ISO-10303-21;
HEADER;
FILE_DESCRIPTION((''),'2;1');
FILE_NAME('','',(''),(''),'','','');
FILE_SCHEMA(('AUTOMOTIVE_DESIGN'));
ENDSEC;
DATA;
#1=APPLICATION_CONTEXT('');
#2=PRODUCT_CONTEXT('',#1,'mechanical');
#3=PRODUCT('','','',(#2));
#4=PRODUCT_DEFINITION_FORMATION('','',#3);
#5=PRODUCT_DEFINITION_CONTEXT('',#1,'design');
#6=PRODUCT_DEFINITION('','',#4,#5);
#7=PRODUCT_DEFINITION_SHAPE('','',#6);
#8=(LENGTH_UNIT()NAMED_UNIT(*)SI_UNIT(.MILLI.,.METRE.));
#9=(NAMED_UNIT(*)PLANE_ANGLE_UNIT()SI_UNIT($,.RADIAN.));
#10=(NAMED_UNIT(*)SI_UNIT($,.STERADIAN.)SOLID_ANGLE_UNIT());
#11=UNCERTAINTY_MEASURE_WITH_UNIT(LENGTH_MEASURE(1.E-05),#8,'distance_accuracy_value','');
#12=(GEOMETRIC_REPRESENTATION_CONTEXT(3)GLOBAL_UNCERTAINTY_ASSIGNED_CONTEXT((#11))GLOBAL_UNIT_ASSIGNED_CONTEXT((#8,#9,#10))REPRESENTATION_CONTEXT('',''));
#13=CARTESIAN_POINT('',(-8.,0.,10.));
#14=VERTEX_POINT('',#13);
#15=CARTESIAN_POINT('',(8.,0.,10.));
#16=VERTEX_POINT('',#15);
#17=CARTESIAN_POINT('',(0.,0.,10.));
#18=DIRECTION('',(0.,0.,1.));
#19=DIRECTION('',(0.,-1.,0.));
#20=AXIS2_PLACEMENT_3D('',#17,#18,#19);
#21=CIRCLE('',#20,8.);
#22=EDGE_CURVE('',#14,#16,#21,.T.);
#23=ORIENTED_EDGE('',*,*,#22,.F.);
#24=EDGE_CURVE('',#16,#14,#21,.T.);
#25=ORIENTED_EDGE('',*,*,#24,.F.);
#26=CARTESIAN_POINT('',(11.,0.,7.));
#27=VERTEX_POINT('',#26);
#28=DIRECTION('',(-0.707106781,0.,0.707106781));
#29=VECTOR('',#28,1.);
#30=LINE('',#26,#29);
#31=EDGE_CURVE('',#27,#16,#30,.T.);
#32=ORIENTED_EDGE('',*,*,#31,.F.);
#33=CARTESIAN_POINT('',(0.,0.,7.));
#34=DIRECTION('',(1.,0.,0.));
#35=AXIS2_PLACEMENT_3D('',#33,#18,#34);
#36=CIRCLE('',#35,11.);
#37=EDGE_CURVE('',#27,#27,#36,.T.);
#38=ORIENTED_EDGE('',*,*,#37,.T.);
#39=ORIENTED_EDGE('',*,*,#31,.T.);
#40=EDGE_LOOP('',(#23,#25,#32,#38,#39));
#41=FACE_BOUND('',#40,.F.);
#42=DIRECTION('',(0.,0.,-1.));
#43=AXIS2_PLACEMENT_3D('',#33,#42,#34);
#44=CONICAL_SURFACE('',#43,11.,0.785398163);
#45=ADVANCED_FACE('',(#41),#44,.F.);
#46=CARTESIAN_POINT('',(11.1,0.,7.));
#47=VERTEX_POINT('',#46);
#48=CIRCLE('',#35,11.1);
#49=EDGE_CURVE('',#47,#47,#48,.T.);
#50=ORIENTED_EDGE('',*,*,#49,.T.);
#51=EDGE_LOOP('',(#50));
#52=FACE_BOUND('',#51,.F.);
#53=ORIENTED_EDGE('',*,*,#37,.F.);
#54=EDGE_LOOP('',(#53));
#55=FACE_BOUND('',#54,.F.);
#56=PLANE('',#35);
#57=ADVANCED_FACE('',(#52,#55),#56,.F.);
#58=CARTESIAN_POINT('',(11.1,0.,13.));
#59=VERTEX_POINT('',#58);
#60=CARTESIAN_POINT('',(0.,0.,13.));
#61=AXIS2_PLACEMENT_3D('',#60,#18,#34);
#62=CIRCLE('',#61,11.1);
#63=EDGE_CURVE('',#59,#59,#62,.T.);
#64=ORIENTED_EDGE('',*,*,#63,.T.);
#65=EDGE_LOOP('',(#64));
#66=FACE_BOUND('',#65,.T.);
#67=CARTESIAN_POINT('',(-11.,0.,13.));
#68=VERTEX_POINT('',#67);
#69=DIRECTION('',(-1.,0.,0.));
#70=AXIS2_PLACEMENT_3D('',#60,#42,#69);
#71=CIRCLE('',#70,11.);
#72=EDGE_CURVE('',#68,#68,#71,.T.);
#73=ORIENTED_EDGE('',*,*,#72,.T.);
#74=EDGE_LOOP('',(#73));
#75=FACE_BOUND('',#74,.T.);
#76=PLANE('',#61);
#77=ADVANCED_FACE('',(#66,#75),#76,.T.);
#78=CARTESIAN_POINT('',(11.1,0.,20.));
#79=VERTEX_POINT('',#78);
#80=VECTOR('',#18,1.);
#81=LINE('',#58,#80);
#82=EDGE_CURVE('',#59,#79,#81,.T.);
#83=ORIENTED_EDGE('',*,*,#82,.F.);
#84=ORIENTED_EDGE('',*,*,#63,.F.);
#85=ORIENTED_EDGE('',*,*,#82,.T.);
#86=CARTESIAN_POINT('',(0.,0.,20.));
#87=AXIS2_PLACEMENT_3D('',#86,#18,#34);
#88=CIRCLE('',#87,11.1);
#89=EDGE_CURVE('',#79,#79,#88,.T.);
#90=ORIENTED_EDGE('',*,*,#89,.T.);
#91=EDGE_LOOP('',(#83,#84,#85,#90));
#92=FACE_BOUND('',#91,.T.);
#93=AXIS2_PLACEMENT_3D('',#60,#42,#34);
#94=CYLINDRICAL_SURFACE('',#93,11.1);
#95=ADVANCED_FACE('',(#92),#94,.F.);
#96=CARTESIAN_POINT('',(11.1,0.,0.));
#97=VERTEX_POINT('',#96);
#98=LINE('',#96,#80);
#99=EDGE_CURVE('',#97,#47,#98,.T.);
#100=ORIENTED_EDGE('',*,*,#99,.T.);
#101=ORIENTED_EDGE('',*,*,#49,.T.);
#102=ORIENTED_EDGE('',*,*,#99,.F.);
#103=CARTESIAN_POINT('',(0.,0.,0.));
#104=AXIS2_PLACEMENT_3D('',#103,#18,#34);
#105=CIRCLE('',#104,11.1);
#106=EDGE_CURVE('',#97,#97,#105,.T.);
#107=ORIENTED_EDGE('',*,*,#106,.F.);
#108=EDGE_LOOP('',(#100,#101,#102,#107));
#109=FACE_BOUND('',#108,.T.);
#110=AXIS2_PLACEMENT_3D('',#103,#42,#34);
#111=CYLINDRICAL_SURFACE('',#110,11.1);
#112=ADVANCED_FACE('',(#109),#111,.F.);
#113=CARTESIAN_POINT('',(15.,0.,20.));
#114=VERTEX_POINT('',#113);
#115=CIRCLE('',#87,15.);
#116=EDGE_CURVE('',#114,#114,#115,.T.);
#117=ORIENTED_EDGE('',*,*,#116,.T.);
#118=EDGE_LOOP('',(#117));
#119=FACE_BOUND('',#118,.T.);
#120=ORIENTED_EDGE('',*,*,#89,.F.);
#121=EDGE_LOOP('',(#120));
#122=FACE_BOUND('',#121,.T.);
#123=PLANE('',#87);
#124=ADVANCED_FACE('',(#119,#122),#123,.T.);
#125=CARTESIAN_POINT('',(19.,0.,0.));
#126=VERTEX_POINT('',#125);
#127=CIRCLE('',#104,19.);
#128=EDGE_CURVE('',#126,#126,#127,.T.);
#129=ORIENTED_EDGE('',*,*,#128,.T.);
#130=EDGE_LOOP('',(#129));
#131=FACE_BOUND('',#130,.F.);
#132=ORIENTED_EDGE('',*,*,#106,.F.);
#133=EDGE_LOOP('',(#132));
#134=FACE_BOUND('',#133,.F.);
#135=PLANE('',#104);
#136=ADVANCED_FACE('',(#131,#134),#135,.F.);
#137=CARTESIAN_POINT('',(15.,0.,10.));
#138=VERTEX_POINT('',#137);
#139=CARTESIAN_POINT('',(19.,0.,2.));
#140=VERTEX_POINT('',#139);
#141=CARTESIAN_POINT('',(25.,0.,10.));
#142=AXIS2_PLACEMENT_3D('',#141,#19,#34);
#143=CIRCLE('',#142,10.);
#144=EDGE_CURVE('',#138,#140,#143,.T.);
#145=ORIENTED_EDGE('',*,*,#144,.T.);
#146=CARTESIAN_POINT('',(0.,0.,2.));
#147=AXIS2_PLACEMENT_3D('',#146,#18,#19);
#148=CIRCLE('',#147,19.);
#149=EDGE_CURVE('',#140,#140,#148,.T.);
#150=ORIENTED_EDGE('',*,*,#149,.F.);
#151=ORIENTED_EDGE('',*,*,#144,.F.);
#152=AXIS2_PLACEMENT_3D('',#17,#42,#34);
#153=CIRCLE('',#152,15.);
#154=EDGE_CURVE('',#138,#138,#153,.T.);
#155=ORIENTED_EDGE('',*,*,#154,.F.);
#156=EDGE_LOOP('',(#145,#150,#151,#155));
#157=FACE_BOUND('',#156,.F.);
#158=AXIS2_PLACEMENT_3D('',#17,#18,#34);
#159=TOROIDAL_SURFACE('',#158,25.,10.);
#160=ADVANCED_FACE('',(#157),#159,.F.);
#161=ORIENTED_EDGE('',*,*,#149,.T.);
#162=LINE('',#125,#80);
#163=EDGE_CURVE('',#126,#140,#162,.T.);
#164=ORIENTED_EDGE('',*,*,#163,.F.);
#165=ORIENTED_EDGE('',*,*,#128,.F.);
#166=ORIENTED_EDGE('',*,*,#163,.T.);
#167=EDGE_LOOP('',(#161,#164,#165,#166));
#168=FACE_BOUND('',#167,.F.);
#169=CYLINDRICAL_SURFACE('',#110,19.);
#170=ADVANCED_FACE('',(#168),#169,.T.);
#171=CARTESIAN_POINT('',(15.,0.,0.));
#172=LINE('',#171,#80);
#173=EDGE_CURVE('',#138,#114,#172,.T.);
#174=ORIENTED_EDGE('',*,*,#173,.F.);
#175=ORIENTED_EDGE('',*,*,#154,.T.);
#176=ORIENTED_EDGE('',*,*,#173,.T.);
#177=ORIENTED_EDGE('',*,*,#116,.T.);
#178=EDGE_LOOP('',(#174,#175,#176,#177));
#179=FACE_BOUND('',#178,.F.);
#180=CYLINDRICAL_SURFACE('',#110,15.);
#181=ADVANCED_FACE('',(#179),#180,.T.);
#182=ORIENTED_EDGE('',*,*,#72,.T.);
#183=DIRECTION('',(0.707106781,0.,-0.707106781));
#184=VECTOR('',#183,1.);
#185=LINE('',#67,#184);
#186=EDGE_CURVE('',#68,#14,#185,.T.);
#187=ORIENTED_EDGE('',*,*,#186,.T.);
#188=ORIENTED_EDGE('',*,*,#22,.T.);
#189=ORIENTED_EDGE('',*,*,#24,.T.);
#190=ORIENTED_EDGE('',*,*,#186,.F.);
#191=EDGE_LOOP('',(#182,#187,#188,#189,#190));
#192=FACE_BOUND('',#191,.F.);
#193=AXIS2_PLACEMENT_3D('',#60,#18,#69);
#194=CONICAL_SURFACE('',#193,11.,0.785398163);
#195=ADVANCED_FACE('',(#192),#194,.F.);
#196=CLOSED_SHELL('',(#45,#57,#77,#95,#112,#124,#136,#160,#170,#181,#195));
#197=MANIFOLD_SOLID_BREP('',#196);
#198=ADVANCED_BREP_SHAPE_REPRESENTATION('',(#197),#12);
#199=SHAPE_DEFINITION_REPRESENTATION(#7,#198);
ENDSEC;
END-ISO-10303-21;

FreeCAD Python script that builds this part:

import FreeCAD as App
import Part
import Sketcher

V = App.Vector


def add_polygon(sketch, points):
    """Adds a closed chain of lines whose ends are joined by coincident constraints."""
    first, n = sketch.GeometryCount, len(points)
    for a, b in zip(points, points[1:] + points[:1]):
        sketch.addGeometry(Part.LineSegment(App.Vector(*a, 0), App.Vector(*b, 0)), False)
    for i in range(n):
        sketch.addConstraint(Sketcher.Constraint("Coincident", first + i, 2, first + (i + 1) % n, 1))

doc = App.newDocument("Part")
body = doc.addObject("PartDesign::Body", "Body")

# Sketch on XY plane
sketch1 = body.newObject("Sketcher::SketchObject", "Sketch")
sketch1.AttachmentSupport = (doc.getObject("XY_Plane"), [""])
sketch1.MapMode = "FlatFace"
sketch1.AttachmentOffset = App.Placement(V(0, 0, 13), App.Rotation())
sketch1.addGeometry(Part.Circle(V(0, 0, 0), V(0, 0, 1), 11.1), False)
sketch1.addConstraint(Sketcher.Constraint("Coincident", 0, 3, -1, 1))
sketch1.addConstraint(Sketcher.Constraint("Diameter", 0, 22.2))
pad1 = body.newObject("PartDesign::Pad", "Pad")
pad1.Profile = sketch1
pad1.Length = 7
body2 = doc.addObject("PartDesign::Body", "Body001")

# Sketch on XZ plane
sketch2 = body2.newObject("Sketcher::SketchObject", "Sketch001")
sketch2.AttachmentSupport = (doc.getObject("XZ_Plane001"), [""])
sketch2.MapMode = "FlatFace"
add_polygon(sketch2, [(0, 7), (11, 7), (0, 18)])  # lines 0-2
sketch2.addConstraint(Sketcher.Constraint("Horizontal", 0))
sketch2.addConstraint(Sketcher.Constraint("Vertical", 2))
sketch2.addConstraint(Sketcher.Constraint("PointOnObject", 1, 2, -2))
sketch2.addConstraint(Sketcher.Constraint("Equal", 0, 2))
sketch2.addConstraint(Sketcher.Constraint("DistanceX", 0, 1, 0, 2, 11.0))
sketch2.addConstraint(Sketcher.Constraint("DistanceY", -1, 1, 0, 2, 7.0))
revolution = body2.newObject("PartDesign::Revolution", "Revolution")
revolution.Profile = sketch2
revolution.ReferenceAxis = (sketch2, ["V_Axis"])
revolution.Angle = 360
body3 = doc.addObject("PartDesign::Body", "Body002")

# Sketch on XZ plane
sketch3 = body3.newObject("Sketcher::SketchObject", "Sketch002")
sketch3.AttachmentSupport = (doc.getObject("XZ_Plane002"), [""])
sketch3.MapMode = "FlatFace"
add_polygon(sketch3, [(0, 13), (-11, 13), (0, 2)])  # lines 0-2
sketch3.addConstraint(Sketcher.Constraint("Horizontal", 0))
sketch3.addConstraint(Sketcher.Constraint("Vertical", 2))
sketch3.addConstraint(Sketcher.Constraint("PointOnObject", 1, 2, -2))
sketch3.addConstraint(Sketcher.Constraint("Equal", 0, 2))
sketch3.addConstraint(Sketcher.Constraint("DistanceX", 0, 2, 0, 1, 11.0))
sketch3.addConstraint(Sketcher.Constraint("DistanceY", -1, 1, 0, 2, 13.0))
revolution2 = body3.newObject("PartDesign::Revolution", "Revolution001")
revolution2.Profile = sketch3
revolution2.ReferenceAxis = (sketch3, ["V_Axis"])
revolution2.Angle = 360
body4 = doc.addObject("PartDesign::Body", "Body003")

# Sketch on XZ plane
sketch4 = body4.newObject("Sketcher::SketchObject", "Sketch003")
sketch4.AttachmentSupport = (doc.getObject("XZ_Plane003"), [""])
sketch4.MapMode = "FlatFace"
sketch4.addGeometry(Part.Circle(V(25, 10, 0), V(0, 0, 1), 10), False)
sketch4.addConstraint(Sketcher.Constraint("Diameter", 0, 20.0))
sketch4.addConstraint(Sketcher.Constraint("DistanceX", -1, 1, 0, 3, 25.0))
sketch4.addConstraint(Sketcher.Constraint("DistanceY", -1, 1, 0, 3, 10.0))
revolution3 = body4.newObject("PartDesign::Revolution", "Revolution002")
revolution3.Profile = sketch4
revolution3.ReferenceAxis = (sketch4, ["V_Axis"])
revolution3.Angle = 360
body5 = doc.addObject("PartDesign::Body", "Body004")
body5.AllowCompound = True

# Sketch on XY plane
sketch5 = body5.newObject("Sketcher::SketchObject", "Sketch004")
sketch5.AttachmentSupport = (doc.getObject("XY_Plane004"), [""])
sketch5.MapMode = "FlatFace"
sketch5.addGeometry(Part.Circle(V(0, 0, 0), V(0, 0, 1), 11.1), False)
sketch5.addConstraint(Sketcher.Constraint("Coincident", 0, 3, -1, 1))
sketch5.addConstraint(Sketcher.Constraint("Diameter", 0, 22.2))
pad2 = body5.newObject("PartDesign::Pad", "Pad001")
pad2.Profile = sketch5
pad2.Length = 7
doc.recompute()

boolean = body5.newObject("PartDesign::Boolean", "Boolean")
boolean.Type = "Fuse"
boolean.addObjects([body])
doc.recompute()

boolean2 = body5.newObject("PartDesign::Boolean", "Boolean001")
boolean2.Type = "Fuse"
boolean2.addObjects([body2])
doc.recompute()

boolean3 = body5.newObject("PartDesign::Boolean", "Boolean002")
boolean3.Type = "Fuse"
boolean3.addObjects([body3])
doc.recompute()

boolean4 = body5.newObject("PartDesign::Boolean", "Boolean003")
boolean4.Type = "Fuse"
boolean4.addObjects([body4])
body6 = doc.addObject("PartDesign::Body", "Body005")

# Sketch on XY plane
sketch6 = body6.newObject("Sketcher::SketchObject", "Sketch005")
sketch6.AttachmentSupport = (doc.getObject("XY_Plane005"), [""])
sketch6.MapMode = "FlatFace"
sketch6.addGeometry(Part.Circle(V(0, 0, 0), V(0, 0, 1), 15), False)
sketch6.addConstraint(Sketcher.Constraint("Coincident", 0, 3, -1, 1))
sketch6.addConstraint(Sketcher.Constraint("Diameter", 0, 30.0))
pad3 = body6.newObject("PartDesign::Pad", "Pad002")
pad3.Profile = sketch6
pad3.Length = 20
body7 = doc.addObject("PartDesign::Body", "Body006")

# Sketch on XY plane
sketch7 = body7.newObject("Sketcher::SketchObject", "Sketch006")
sketch7.AttachmentSupport = (doc.getObject("XY_Plane006"), [""])
sketch7.MapMode = "FlatFace"
sketch7.addGeometry(Part.Circle(V(0, 0, 0), V(0, 0, 1), 19), False)
sketch7.addConstraint(Sketcher.Constraint("Coincident", 0, 3, -1, 1))
sketch7.addConstraint(Sketcher.Constraint("Diameter", 0, 38.0))
pad4 = body7.newObject("PartDesign::Pad", "Pad003")
pad4.Profile = sketch7
pad4.Length = 10
doc.recompute()

boolean5 = body7.newObject("PartDesign::Boolean", "Boolean004")
boolean5.Type = "Fuse"
boolean5.addObjects([body6])
doc.recompute()

boolean6 = body7.newObject("PartDesign::Boolean", "Boolean005")
boolean6.Type = "Cut"
boolean6.addObjects([body5])

doc.recompute()
